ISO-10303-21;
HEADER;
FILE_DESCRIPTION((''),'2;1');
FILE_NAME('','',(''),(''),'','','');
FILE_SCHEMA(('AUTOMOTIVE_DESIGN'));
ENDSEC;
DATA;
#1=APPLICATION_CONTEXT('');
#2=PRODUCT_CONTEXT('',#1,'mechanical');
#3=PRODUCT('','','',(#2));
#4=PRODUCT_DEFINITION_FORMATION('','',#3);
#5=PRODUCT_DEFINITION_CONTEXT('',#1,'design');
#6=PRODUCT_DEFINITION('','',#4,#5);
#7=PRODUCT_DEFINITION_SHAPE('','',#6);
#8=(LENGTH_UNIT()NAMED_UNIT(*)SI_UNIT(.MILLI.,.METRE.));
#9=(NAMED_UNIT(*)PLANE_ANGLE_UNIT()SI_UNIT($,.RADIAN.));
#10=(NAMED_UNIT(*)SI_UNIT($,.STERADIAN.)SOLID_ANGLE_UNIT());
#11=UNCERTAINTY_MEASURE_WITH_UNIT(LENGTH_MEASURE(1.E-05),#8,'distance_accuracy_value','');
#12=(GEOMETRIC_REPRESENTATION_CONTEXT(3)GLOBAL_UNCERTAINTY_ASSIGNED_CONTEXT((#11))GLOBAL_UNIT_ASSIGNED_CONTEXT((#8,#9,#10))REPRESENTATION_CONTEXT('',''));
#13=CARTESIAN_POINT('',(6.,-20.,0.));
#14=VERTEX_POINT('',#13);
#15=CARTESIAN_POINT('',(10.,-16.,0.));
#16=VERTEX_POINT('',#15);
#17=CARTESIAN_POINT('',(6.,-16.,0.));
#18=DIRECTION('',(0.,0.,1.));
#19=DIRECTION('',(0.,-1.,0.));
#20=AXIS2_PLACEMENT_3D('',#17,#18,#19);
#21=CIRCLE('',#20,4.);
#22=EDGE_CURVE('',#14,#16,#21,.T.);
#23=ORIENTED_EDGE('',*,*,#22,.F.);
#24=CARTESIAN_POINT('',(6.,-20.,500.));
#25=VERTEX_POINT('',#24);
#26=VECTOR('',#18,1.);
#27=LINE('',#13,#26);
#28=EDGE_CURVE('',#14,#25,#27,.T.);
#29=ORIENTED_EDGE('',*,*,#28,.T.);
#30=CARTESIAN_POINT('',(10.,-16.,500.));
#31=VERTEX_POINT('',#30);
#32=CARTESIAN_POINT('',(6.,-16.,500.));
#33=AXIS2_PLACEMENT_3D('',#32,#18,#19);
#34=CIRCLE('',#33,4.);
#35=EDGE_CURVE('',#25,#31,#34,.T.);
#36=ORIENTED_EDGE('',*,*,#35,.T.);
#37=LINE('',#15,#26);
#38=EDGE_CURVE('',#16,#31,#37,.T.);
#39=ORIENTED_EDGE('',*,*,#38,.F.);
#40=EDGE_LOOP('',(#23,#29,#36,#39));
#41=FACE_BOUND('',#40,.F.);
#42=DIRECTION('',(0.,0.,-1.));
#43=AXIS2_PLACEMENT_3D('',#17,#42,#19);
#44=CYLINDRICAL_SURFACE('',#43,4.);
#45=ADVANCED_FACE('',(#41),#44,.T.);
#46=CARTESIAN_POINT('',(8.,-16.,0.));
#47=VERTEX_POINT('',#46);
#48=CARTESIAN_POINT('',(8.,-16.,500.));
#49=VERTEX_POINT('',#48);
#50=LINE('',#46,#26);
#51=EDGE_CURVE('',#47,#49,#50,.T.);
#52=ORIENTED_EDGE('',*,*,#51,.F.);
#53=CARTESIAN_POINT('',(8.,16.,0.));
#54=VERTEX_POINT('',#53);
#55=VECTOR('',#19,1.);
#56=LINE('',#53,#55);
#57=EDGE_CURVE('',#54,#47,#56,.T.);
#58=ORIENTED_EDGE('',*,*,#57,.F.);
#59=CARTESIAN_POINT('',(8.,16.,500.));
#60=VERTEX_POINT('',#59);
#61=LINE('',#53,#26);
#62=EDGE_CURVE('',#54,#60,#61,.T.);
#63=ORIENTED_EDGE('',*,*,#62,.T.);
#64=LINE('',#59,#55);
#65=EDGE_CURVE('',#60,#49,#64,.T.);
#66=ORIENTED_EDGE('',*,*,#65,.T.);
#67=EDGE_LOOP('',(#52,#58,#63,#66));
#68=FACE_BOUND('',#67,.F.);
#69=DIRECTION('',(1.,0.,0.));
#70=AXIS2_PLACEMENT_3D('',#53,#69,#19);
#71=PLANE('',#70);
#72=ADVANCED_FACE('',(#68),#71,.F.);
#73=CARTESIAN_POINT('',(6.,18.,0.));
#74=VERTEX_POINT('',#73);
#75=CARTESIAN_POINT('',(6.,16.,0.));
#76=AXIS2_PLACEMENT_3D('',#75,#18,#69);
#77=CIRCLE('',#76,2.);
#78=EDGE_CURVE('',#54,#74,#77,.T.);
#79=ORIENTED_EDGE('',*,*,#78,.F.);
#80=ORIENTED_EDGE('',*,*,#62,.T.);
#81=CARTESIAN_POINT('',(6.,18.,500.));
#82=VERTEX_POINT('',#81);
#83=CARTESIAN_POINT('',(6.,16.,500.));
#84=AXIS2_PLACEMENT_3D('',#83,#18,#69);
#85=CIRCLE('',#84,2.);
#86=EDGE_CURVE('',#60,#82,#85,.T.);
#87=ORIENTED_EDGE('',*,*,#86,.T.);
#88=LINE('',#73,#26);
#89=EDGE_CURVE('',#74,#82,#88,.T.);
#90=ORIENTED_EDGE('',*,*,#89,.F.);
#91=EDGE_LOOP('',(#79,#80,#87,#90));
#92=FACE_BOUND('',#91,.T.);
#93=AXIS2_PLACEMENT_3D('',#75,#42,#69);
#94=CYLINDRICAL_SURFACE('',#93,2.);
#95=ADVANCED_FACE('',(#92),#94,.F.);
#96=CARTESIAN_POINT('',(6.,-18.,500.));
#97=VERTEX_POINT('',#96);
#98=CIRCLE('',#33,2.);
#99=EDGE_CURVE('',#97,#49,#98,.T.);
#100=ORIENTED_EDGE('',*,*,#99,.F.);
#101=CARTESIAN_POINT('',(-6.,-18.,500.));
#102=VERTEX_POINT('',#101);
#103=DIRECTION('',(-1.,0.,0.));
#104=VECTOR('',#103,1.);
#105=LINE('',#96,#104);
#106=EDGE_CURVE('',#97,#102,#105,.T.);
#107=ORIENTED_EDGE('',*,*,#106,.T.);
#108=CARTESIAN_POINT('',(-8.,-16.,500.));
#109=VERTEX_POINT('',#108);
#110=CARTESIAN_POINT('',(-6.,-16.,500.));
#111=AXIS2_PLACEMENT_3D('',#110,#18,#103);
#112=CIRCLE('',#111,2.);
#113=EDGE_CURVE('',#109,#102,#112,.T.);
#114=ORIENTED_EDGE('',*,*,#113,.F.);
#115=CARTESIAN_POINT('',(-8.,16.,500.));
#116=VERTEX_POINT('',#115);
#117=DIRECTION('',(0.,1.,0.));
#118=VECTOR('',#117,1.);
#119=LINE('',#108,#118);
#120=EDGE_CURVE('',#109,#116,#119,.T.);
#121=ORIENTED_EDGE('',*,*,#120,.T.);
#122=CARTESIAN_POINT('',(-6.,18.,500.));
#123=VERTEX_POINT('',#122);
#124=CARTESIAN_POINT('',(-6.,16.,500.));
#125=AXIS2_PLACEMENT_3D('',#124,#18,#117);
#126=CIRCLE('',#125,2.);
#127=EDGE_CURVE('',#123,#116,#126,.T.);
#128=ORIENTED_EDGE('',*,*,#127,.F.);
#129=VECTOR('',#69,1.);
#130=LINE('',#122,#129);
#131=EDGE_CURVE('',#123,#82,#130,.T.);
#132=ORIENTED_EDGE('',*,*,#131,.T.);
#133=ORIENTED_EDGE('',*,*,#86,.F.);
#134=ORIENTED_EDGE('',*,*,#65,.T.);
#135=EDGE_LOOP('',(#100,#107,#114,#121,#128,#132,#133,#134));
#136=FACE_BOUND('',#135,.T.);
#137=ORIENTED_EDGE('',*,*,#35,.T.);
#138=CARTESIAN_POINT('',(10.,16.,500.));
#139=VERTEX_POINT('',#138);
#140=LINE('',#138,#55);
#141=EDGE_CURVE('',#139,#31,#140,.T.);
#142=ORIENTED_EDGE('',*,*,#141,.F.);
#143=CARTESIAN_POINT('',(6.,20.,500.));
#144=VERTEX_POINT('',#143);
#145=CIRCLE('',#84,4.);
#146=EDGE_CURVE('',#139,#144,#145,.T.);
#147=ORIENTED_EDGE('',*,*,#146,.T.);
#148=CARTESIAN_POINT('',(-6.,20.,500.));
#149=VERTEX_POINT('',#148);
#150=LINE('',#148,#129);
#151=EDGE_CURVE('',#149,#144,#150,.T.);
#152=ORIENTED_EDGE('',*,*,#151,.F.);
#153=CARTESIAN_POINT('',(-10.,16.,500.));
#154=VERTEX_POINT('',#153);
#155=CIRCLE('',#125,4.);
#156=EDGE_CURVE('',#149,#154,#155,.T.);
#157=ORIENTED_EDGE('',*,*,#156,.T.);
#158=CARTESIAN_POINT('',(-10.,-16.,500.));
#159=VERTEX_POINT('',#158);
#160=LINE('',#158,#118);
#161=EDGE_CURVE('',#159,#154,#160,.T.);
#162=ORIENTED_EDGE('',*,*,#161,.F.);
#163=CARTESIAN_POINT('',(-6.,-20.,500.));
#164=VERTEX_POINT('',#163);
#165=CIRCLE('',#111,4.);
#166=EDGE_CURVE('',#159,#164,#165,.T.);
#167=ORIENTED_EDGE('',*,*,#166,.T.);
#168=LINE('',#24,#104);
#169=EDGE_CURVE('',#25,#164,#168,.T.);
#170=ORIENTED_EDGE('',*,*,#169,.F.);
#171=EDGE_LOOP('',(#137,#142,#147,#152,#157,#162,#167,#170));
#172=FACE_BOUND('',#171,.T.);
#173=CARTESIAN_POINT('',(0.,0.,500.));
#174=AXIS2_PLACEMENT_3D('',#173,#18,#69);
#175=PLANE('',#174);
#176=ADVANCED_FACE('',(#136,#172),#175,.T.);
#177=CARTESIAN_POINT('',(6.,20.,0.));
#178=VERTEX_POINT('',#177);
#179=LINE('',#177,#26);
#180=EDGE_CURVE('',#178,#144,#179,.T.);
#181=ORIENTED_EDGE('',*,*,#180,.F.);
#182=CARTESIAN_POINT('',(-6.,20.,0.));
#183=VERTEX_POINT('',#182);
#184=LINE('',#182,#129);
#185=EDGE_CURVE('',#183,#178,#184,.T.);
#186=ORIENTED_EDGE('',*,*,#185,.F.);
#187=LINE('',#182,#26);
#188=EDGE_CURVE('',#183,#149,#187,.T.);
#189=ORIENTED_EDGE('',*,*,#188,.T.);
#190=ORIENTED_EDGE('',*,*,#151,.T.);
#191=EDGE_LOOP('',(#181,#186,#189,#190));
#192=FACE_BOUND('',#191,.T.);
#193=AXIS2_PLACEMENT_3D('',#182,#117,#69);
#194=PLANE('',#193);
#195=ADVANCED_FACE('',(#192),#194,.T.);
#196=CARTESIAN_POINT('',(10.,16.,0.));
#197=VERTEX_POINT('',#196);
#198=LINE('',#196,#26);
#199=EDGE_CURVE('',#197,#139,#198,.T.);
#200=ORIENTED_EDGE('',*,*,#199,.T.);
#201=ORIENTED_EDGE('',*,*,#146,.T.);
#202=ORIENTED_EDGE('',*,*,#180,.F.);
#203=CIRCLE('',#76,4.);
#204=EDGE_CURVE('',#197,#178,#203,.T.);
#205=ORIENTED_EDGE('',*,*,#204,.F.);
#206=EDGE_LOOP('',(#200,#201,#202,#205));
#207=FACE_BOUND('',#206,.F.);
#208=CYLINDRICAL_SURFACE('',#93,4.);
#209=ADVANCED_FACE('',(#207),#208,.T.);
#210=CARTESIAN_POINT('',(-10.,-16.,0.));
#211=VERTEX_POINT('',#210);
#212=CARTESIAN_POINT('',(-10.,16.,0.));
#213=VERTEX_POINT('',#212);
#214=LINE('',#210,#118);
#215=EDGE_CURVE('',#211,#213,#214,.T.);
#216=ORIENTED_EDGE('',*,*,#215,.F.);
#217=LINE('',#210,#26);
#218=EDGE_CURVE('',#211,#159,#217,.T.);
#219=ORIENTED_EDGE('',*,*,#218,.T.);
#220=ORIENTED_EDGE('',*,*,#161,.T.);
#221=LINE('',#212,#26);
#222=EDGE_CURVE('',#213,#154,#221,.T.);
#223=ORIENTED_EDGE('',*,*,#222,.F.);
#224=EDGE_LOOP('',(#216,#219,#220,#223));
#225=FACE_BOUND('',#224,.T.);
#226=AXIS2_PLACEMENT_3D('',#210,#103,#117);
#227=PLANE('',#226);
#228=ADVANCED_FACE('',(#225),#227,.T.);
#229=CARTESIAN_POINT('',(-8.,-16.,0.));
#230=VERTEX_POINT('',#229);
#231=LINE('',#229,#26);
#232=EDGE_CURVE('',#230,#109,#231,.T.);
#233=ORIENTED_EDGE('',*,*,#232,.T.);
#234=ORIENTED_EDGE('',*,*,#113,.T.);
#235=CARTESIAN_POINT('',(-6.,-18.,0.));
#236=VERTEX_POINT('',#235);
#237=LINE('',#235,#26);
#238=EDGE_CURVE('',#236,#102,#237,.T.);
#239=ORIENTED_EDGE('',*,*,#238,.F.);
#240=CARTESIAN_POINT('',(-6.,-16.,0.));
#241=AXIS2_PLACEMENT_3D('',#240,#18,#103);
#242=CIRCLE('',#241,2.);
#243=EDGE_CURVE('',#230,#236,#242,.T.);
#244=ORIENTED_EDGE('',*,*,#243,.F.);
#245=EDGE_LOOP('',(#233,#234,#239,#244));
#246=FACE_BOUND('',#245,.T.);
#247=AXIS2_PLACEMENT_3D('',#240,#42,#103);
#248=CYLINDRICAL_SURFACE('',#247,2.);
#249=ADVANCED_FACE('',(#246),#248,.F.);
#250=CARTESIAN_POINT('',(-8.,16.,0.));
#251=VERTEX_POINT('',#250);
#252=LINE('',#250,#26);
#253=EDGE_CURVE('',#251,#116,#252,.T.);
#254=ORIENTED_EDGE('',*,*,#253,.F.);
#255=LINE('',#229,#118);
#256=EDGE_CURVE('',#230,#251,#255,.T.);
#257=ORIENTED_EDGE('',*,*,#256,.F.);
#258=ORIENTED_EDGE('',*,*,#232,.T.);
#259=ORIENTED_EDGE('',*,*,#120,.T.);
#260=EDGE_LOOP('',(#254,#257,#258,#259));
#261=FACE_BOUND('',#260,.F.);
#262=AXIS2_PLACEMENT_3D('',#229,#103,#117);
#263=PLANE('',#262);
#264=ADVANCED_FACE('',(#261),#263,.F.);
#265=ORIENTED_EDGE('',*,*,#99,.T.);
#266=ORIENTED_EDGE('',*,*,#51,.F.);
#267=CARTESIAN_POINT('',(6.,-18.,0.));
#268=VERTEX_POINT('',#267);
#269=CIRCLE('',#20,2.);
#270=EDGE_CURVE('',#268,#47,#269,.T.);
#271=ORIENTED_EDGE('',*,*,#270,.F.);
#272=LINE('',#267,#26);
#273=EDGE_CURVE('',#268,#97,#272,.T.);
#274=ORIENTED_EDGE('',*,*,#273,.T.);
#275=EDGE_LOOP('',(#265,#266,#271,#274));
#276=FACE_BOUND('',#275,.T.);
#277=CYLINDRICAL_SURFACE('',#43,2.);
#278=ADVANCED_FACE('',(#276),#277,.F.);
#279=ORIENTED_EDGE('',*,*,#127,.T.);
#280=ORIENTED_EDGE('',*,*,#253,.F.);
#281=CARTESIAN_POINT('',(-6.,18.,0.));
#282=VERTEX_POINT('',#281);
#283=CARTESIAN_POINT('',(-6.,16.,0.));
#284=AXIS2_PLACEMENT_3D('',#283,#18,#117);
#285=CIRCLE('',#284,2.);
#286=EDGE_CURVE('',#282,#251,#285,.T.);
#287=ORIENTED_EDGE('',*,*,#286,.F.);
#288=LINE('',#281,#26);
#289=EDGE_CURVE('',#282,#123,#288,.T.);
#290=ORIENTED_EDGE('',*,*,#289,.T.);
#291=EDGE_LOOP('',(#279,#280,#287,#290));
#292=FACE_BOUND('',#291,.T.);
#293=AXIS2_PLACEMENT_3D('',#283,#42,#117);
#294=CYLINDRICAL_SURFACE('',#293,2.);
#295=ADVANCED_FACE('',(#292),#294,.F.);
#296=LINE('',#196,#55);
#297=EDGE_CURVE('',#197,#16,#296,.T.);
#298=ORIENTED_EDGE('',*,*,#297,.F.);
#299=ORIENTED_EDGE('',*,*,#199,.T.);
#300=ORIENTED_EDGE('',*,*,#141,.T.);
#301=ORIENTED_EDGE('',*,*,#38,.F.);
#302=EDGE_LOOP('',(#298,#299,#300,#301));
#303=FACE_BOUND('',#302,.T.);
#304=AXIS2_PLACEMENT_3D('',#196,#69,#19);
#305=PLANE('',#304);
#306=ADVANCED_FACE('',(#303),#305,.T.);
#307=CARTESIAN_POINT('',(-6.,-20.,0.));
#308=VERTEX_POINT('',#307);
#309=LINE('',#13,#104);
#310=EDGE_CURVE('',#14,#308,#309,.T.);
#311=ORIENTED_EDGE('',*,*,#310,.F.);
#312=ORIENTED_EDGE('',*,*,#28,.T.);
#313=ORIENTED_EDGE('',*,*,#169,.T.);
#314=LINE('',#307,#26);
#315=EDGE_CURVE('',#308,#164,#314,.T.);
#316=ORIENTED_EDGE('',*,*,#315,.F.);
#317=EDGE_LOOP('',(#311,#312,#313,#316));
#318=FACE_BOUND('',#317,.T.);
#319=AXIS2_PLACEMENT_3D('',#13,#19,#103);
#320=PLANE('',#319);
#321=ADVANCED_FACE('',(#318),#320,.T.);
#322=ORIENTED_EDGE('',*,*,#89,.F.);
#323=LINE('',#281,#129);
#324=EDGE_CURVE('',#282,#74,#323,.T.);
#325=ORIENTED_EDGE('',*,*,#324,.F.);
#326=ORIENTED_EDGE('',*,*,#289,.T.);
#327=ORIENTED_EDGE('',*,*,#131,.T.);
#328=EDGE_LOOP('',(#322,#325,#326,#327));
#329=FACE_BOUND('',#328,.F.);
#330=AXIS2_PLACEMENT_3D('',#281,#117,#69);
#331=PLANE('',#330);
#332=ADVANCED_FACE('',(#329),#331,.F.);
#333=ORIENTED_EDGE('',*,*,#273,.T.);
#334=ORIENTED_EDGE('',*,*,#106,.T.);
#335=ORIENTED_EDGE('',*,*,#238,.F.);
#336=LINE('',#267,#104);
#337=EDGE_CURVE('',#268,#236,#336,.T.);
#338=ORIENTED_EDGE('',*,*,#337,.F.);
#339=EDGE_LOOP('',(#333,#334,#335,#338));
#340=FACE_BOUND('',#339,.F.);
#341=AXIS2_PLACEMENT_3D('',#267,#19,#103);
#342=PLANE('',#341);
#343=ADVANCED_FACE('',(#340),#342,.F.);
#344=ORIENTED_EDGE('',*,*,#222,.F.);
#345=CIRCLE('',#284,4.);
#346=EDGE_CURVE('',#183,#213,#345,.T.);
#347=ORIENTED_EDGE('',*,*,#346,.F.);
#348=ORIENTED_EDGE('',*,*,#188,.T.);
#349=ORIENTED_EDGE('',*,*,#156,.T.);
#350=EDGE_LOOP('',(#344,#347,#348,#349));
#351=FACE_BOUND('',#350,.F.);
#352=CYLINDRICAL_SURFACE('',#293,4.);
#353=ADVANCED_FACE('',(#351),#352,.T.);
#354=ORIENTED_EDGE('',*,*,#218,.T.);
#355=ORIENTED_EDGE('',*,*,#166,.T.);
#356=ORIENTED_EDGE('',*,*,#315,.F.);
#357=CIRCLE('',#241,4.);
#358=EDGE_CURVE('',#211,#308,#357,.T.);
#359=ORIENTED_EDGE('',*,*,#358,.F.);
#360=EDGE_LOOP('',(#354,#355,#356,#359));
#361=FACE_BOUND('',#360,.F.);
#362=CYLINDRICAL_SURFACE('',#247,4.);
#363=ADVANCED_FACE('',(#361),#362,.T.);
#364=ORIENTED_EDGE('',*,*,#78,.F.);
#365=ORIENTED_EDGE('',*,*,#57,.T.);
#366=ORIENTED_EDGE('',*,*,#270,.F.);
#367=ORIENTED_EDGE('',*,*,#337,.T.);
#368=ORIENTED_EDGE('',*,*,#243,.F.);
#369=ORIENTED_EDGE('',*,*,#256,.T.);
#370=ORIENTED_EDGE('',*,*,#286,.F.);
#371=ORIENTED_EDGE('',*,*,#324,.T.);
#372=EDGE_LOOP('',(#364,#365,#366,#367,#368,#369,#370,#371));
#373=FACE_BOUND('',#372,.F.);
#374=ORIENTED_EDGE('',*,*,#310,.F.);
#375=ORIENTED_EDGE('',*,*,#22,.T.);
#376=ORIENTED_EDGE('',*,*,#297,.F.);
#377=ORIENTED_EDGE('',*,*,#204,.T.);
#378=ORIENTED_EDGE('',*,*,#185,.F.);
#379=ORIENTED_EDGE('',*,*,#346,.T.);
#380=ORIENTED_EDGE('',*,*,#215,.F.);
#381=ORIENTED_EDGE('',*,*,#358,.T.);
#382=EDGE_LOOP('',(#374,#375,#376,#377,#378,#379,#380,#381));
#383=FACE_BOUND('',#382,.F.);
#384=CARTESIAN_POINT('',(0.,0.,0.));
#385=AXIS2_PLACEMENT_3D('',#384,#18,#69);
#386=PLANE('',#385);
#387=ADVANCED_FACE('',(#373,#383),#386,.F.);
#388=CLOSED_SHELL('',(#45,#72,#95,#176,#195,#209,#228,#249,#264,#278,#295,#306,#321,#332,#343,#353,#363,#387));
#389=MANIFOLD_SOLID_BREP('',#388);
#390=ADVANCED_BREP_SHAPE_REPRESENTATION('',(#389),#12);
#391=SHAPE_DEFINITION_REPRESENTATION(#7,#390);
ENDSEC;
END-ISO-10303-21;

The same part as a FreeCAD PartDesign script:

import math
import FreeCAD as App
import Part
import Sketcher

V = App.Vector

doc = App.newDocument("Part")
body = doc.addObject("PartDesign::Body", "Body")

# Sketch on XY plane
sketch1 = body.newObject("Sketcher::SketchObject", "Sketch")
sketch1.AttachmentSupport = (doc.getObject("XY_Plane"), [""])
sketch1.MapMode = "FlatFace"
sketch1.addGeometry(Part.LineSegment(V(-10, 16, 0), V(-10, -16, 0)), False)
sketch1.addGeometry(Part.ArcOfCircle(Part.Circle(V(-6, -16, 0), V(0, 0, 1), 4), math.radians(180), math.radians(270)), False)
sketch1.addGeometry(Part.LineSegment(V(-6, -20, 0), V(6, -20, 0)), False)
sketch1.addGeometry(Part.ArcOfCircle(Part.Circle(V(6, -16, 0), V(0, 0, 1), 4), math.radians(-90), math.radians(0)), False)
sketch1.addGeometry(Part.LineSegment(V(10, -16, 0), V(10, 16, 0)), False)
sketch1.addGeometry(Part.ArcOfCircle(Part.Circle(V(6, 16, 0), V(0, 0, 1), 4), math.radians(0), math.radians(90)), False)
sketch1.addGeometry(Part.LineSegment(V(6, 20, 0), V(-6, 20, 0)), False)
sketch1.addGeometry(Part.ArcOfCircle(Part.Circle(V(-6, 16, 0), V(0, 0, 1), 4), math.radians(90), math.radians(180)), False)
sketch1.addGeometry(Part.ArcOfCircle(Part.Circle(V(-6, 16, 0), V(0, 0, 1), 2), math.radians(90), math.radians(180)), False)
sketch1.addGeometry(Part.LineSegment(V(-6, 18, 0), V(6, 18, 0)), False)
sketch1.addGeometry(Part.ArcOfCircle(Part.Circle(V(6, 16, 0), V(0, 0, 1), 2), math.radians(0), math.radians(90)), False)
sketch1.addGeometry(Part.LineSegment(V(8, 16, 0), V(8, -16, 0)), False)
sketch1.addGeometry(Part.ArcOfCircle(Part.Circle(V(6, -16, 0), V(0, 0, 1), 2), math.radians(-90), math.radians(0)), False)
sketch1.addGeometry(Part.LineSegment(V(6, -18, 0), V(-6, -18, 0)), False)
sketch1.addGeometry(Part.ArcOfCircle(Part.Circle(V(-6, -16, 0), V(0, 0, 1), 2), math.radians(180), math.radians(270)), False)
sketch1.addGeometry(Part.LineSegment(V(-8, -16, 0), V(-8, 16, 0)), False)
sketch1.addConstraint(Sketcher.Constraint("Tangent", 0, 2, 1, 1))
sketch1.addConstraint(Sketcher.Constraint("Tangent", 1, 2, 2, 1))
sketch1.addConstraint(Sketcher.Constraint("Tangent", 2, 2, 3, 1))
sketch1.addConstraint(Sketcher.Constraint("Tangent", 3, 2, 4, 1))
sketch1.addConstraint(Sketcher.Constraint("Tangent", 4, 2, 5, 1))
sketch1.addConstraint(Sketcher.Constraint("Tangent", 5, 2, 6, 1))
sketch1.addConstraint(Sketcher.Constraint("Tangent", 6, 2, 7, 1))
sketch1.addConstraint(Sketcher.Constraint("Tangent", 7, 2, 0, 1))
sketch1.addConstraint(Sketcher.Constraint("Tangent", 8, 1, 9, 1))
sketch1.addConstraint(Sketcher.Constraint("Tangent", 9, 2, 10, 2))
sketch1.addConstraint(Sketcher.Constraint("Tangent", 10, 1, 11, 1))
sketch1.addConstraint(Sketcher.Constraint("Tangent", 11, 2, 12, 2))
sketch1.addConstraint(Sketcher.Constraint("Tangent", 12, 1, 13, 1))
sketch1.addConstraint(Sketcher.Constraint("Tangent", 13, 2, 14, 2))
sketch1.addConstraint(Sketcher.Constraint("Tangent", 14, 1, 15, 1))
sketch1.addConstraint(Sketcher.Constraint("Tangent", 15, 2, 8, 2))
sketch1.addConstraint(Sketcher.Constraint("Vertical", 0))
sketch1.addConstraint(Sketcher.Constraint("Horizontal", 2))
sketch1.addConstraint(Sketcher.Constraint("Vertical", 4))
sketch1.addConstraint(Sketcher.Constraint("Horizontal", 6))
sketch1.addConstraint(Sketcher.Constraint("Horizontal", 9))
sketch1.addConstraint(Sketcher.Constraint("Vertical", 11))
sketch1.addConstraint(Sketcher.Constraint("Horizontal", 13))
sketch1.addConstraint(Sketcher.Constraint("Vertical", 15))
sketch1.addConstraint(Sketcher.Constraint("Coincident", 8, 3, 7, 3))
sketch1.addConstraint(Sketcher.Constraint("Coincident", 10, 3, 5, 3))
sketch1.addConstraint(Sketcher.Constraint("Coincident", 12, 3, 3, 3))
sketch1.addConstraint(Sketcher.Constraint("Equal", 1, 3))
sketch1.addConstraint(Sketcher.Constraint("Equal", 3, 5))
sketch1.addConstraint(Sketcher.Constraint("Equal", 5, 7))
sketch1.addConstraint(Sketcher.Constraint("Equal", 12, 14))
sketch1.addConstraint(Sketcher.Constraint("Symmetric", 1, 3, 5, 3, -1, 1))
sketch1.addConstraint(Sketcher.Constraint("Radius", 1, 4.0))
sketch1.addConstraint(Sketcher.Constraint("Radius", 8, 2.0))
sketch1.addConstraint(Sketcher.Constraint("DistanceX", 0, 2, -1, 1, 10.0))
sketch1.addConstraint(Sketcher.Constraint("DistanceY", 1, 2, -1, 1, 20.0))
pad1 = body.newObject("PartDesign::Pad", "Pad")
pad1.Profile = sketch1
pad1.Length = 500

doc.recompute()
